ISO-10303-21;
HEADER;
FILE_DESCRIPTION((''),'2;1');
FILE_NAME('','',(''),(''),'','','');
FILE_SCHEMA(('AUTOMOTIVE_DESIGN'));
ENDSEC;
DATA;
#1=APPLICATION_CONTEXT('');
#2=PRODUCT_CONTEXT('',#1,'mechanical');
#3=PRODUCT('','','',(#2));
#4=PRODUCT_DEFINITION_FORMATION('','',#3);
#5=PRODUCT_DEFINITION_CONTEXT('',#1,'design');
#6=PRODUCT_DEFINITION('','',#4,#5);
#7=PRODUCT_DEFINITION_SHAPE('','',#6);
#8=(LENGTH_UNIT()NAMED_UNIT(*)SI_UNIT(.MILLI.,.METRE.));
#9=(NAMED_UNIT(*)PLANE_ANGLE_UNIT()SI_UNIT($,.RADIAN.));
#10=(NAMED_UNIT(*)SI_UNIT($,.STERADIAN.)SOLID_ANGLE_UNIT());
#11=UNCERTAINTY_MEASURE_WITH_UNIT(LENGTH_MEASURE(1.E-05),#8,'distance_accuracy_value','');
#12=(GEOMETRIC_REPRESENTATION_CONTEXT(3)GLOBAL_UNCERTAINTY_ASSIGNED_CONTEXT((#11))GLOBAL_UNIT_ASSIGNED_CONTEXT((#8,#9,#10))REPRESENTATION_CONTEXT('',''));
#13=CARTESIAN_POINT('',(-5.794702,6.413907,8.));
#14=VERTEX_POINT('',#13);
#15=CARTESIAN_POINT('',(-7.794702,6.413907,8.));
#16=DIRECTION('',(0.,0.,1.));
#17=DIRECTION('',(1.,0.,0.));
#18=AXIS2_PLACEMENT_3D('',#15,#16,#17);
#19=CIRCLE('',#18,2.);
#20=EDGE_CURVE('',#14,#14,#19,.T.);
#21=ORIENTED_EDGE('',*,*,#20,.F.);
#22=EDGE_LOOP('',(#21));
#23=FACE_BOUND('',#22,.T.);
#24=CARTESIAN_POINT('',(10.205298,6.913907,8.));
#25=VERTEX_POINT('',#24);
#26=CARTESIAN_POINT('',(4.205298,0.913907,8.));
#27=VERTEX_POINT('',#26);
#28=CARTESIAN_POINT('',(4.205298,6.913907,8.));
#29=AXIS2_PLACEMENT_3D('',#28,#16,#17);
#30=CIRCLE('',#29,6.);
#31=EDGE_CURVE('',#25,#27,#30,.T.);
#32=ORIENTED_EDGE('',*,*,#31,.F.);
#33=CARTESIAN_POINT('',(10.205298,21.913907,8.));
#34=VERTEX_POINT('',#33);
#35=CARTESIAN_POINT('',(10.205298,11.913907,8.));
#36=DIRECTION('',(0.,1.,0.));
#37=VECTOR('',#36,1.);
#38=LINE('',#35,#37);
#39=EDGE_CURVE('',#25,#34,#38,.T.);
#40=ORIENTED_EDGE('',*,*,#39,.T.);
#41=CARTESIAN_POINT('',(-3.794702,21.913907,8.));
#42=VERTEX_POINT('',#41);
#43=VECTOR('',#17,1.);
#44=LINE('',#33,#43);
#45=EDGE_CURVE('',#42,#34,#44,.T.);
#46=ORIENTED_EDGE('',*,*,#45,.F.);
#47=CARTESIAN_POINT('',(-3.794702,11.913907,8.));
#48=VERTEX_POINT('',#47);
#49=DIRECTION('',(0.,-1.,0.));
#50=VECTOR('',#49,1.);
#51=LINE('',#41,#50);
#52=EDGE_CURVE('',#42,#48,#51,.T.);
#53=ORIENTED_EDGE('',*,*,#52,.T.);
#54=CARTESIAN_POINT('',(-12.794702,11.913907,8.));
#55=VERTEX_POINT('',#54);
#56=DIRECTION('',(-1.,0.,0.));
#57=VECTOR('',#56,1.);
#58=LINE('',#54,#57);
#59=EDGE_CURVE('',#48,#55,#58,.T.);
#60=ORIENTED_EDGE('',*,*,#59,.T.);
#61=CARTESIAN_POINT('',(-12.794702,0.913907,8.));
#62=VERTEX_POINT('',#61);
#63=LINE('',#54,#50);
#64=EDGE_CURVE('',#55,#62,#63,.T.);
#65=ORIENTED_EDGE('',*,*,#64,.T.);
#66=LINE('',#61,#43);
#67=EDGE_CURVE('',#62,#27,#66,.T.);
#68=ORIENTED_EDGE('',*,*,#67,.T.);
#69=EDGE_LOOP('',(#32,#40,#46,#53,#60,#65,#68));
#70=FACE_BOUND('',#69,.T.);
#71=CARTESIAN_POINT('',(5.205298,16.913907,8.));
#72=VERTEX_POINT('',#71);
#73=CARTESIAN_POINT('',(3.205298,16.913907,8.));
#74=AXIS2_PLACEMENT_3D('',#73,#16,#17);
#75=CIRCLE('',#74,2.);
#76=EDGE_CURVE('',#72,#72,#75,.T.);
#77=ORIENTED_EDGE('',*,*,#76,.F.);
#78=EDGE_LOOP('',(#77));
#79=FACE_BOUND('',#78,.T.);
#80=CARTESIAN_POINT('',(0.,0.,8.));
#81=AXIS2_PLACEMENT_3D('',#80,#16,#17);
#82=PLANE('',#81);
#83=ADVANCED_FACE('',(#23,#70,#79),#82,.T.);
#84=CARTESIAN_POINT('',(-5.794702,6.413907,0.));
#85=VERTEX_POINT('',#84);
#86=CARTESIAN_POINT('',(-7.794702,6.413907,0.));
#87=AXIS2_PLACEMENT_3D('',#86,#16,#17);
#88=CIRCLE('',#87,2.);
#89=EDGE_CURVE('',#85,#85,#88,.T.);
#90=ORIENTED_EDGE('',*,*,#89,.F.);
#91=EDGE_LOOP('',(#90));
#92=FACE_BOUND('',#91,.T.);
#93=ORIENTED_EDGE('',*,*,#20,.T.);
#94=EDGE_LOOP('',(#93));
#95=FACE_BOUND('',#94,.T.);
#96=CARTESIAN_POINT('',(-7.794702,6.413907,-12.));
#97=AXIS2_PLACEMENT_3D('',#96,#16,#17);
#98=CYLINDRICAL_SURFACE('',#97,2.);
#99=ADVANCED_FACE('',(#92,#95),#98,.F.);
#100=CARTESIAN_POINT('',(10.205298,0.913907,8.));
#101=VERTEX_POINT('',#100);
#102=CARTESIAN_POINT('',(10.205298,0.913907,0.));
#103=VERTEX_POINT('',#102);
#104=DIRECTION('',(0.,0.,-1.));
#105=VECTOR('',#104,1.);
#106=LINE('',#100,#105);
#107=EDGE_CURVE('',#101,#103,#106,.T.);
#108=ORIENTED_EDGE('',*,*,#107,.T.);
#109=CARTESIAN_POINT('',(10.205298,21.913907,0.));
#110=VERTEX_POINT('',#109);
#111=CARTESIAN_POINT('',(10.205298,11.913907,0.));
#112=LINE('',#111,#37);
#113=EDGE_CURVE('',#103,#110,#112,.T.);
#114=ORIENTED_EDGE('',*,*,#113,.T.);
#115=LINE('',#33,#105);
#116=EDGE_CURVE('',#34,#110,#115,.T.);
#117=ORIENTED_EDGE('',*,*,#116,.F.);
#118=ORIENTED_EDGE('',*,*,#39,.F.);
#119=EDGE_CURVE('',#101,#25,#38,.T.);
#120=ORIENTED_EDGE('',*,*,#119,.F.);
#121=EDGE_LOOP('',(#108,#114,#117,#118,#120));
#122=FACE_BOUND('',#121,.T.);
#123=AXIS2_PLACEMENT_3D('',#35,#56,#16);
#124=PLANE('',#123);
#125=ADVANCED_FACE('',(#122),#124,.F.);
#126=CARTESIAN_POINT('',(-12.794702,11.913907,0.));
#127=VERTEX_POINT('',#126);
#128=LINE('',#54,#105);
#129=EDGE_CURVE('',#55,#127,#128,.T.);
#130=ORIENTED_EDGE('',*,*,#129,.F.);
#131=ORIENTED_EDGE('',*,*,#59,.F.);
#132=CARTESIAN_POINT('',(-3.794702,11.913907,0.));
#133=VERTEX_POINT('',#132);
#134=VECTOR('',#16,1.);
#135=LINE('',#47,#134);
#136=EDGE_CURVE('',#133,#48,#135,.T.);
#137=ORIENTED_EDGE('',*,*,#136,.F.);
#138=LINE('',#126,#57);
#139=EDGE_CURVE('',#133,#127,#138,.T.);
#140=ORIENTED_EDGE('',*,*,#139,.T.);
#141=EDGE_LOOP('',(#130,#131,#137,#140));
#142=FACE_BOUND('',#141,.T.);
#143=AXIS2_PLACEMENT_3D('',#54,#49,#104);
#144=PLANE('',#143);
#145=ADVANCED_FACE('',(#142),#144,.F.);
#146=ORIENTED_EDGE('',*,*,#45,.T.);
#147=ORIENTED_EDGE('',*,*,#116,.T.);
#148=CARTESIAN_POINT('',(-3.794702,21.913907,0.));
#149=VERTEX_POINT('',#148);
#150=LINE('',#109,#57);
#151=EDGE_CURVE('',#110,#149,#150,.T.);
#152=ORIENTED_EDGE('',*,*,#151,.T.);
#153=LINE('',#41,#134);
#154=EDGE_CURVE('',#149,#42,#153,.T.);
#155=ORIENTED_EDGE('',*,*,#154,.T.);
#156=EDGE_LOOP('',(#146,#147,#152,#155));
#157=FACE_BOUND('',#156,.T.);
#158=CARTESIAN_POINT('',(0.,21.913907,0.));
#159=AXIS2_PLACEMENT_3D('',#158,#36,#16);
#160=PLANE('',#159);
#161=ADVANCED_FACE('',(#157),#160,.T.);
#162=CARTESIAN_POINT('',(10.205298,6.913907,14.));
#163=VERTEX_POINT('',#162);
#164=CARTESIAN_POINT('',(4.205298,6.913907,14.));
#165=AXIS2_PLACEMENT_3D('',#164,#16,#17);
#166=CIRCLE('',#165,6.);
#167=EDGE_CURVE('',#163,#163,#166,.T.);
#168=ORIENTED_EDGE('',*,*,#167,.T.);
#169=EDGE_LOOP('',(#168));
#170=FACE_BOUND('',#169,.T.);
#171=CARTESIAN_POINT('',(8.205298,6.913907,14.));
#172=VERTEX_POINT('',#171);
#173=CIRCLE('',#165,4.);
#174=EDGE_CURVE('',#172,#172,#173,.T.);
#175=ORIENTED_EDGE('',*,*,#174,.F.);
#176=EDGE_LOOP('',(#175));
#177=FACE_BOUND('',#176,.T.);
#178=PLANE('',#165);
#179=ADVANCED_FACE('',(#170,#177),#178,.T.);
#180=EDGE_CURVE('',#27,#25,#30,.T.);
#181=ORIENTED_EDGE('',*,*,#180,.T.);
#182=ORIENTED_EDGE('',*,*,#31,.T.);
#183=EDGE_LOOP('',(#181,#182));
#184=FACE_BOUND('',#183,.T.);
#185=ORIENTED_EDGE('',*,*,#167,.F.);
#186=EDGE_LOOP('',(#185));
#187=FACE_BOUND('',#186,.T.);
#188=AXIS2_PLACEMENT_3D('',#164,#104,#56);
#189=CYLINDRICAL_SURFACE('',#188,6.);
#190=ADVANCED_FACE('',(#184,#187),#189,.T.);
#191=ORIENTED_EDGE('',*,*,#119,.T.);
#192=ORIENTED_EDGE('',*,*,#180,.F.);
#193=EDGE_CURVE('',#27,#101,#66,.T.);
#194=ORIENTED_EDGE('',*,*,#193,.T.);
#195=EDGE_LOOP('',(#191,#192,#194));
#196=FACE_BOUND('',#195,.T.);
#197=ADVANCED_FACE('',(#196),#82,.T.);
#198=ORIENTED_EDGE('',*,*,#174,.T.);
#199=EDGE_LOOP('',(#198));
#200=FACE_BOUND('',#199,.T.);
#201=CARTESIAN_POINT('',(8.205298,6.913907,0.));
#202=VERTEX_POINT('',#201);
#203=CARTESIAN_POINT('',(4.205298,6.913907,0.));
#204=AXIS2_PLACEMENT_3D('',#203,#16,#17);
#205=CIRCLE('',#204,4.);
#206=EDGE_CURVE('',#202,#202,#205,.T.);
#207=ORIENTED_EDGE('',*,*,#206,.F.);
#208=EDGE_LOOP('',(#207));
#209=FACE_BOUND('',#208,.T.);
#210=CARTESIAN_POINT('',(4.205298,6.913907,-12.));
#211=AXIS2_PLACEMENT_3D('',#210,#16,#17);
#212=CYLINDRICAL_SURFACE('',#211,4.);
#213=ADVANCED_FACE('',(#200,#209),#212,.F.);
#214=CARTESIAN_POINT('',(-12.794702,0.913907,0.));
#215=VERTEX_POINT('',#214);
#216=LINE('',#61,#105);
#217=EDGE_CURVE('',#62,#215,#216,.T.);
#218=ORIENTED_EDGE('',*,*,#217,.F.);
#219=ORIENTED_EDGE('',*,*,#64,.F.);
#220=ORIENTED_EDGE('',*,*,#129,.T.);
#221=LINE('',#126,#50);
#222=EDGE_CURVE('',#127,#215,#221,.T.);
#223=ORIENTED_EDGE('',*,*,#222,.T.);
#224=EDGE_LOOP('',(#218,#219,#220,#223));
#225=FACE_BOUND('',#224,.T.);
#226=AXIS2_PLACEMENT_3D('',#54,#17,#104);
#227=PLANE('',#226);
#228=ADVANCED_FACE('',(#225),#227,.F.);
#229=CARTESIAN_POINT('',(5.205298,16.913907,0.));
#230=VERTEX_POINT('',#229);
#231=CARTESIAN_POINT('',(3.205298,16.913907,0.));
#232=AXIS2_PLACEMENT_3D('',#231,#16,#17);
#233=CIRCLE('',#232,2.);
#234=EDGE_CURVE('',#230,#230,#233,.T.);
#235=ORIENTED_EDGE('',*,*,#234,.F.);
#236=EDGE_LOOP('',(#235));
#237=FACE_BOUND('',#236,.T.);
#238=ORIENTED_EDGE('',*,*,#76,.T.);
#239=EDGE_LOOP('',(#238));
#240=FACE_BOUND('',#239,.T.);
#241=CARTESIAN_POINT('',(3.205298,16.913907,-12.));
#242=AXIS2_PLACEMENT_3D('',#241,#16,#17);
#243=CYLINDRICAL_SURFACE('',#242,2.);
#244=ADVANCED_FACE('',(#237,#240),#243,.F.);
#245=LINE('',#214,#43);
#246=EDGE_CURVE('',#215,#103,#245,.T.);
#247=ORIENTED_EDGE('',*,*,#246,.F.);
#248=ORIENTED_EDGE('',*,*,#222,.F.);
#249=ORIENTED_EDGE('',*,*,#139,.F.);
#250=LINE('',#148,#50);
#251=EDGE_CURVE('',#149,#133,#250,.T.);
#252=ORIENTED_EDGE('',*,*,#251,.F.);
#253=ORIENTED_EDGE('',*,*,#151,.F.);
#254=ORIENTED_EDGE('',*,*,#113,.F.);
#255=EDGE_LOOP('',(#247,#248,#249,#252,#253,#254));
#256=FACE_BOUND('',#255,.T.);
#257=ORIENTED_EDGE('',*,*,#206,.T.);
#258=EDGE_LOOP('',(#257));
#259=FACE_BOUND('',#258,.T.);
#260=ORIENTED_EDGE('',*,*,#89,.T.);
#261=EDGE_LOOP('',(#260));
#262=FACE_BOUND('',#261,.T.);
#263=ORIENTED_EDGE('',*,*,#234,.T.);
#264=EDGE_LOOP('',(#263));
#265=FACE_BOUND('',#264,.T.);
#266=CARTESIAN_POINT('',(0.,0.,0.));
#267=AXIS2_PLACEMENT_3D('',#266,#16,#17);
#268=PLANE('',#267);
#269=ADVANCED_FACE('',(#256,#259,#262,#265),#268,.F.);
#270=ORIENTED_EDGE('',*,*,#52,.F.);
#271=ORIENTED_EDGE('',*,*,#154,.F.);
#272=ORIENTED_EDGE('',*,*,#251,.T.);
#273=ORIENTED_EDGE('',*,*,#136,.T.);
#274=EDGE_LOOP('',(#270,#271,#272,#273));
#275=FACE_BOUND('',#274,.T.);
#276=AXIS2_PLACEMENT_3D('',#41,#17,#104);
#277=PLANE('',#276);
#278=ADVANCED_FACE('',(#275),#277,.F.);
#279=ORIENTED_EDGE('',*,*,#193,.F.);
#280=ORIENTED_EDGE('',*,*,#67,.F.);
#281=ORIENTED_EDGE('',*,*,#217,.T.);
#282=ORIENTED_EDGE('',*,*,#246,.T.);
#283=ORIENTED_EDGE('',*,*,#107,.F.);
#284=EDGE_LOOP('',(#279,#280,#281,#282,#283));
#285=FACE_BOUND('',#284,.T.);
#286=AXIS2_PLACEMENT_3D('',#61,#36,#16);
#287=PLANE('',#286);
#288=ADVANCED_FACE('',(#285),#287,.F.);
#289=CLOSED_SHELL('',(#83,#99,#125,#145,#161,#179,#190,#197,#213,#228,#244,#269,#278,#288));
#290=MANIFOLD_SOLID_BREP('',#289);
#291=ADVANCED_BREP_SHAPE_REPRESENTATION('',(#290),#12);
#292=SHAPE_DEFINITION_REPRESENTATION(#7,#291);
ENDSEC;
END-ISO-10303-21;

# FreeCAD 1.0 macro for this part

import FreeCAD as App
import Part
import Sketcher
Q = App.Units.Quantity

doc = App.newDocument("Part")
body = doc.addObject("PartDesign::Body", "Body")

# Sketch on XY plane
sketch1 = body.newObject("Sketcher::SketchObject", "Sketch")
sketch1.AttachmentSupport = (doc.getObject("XY_Plane"), [""])
sketch1.MapMode = "FlatFace"
sketch1.addGeometry(Part.LineSegment(App.Vector(-13, 12, 0), App.Vector(-13, 1, 0)), False)
sketch1.addGeometry(Part.LineSegment(App.Vector(-13, 1, 0), App.Vector(10, 1, 0)), False)
sketch1.addGeometry(Part.LineSegment(App.Vector(10, 1, 0), App.Vector(10, 12, 0)), False)
sketch1.addGeometry(Part.LineSegment(App.Vector(10, 12, 0), App.Vector(-13, 12, 0)), False)
sketch1.addConstraint(Sketcher.Constraint("Coincident", 0, 2, 1, 1))
sketch1.addConstraint(Sketcher.Constraint("Coincident", 1, 2, 2, 1))
sketch1.addConstraint(Sketcher.Constraint("Coincident", 2, 2, 3, 1))
sketch1.addConstraint(Sketcher.Constraint("Coincident", 3, 2, 0, 1))
sketch1.addConstraint(Sketcher.Constraint("Vertical", 0))
sketch1.addConstraint(Sketcher.Constraint("Horizontal", 1))
sketch1.addConstraint(Sketcher.Constraint("Vertical", 2))
sketch1.addConstraint(Sketcher.Constraint("Horizontal", 3))
sketch1.addConstraint(Sketcher.Constraint("DistanceX", 1, 1, 1, 2, Q("23 mm")))
sketch1.addConstraint(Sketcher.Constraint("DistanceY", 0, 2, 0, 1, Q("11 mm")))
sketch1.addConstraint(Sketcher.Constraint("DistanceX", 0, 2, -1, 1, Q("12.794702 mm")))
sketch1.addConstraint(Sketcher.Constraint("DistanceY", -1, 1, 0, 2, Q("0.913907 mm")))
pad1 = body.newObject("PartDesign::Pad", "Pad")
pad1.Profile = sketch1
pad1.Length = 8

# Sketch on XZ plane
sketch2 = body.newObject("Sketcher::SketchObject", "Sketch001")
sketch2.AttachmentSupport = (doc.getObject("XZ_Plane"), [""])
sketch2.MapMode = "FlatFace"
sketch2.AttachmentOffset = App.Placement(App.Vector(0, 0, -11.913907), App.Rotation())
sketch2.addGeometry(Part.LineSegment(App.Vector(-4, 0, 0), App.Vector(-4, 8, 0)), False)
sketch2.addGeometry(Part.LineSegment(App.Vector(-4, 8, 0), App.Vector(10, 8, 0)), False)
sketch2.addGeometry(Part.LineSegment(App.Vector(10, 8, 0), App.Vector(10, 0, 0)), False)
sketch2.addGeometry(Part.LineSegment(App.Vector(10, 0, 0), App.Vector(-4, 0, 0)), False)
sketch2.addConstraint(Sketcher.Constraint("Coincident", 0, 2, 1, 1))
sketch2.addConstraint(Sketcher.Constraint("Coincident", 1, 2, 2, 1))
sketch2.addConstraint(Sketcher.Constraint("Coincident", 2, 2, 3, 1))
sketch2.addConstraint(Sketcher.Constraint("Coincident", 3, 2, 0, 1))
sketch2.addConstraint(Sketcher.Constraint("Vertical", 0))
sketch2.addConstraint(Sketcher.Constraint("Horizontal", 1))
sketch2.addConstraint(Sketcher.Constraint("Vertical", 2))
sketch2.addConstraint(Sketcher.Constraint("Horizontal", 3))
sketch2.addConstraint(Sketcher.Constraint("PointOnObject", 2, 2, -1))
sketch2.addConstraint(Sketcher.Constraint("DistanceX", 1, 1, 1, 2, Q("14 mm")))
sketch2.addConstraint(Sketcher.Constraint("DistanceY", 0, 1, 0, 2, Q("8 mm")))
sketch2.addConstraint(Sketcher.Constraint("DistanceX", 0, 2, -1, 1, Q("3.794702 mm")))
pad2 = body.newObject("PartDesign::Pad", "Pad001")
pad2.Profile = sketch2
pad2.Length = 10
pad2.Reversed = True

# Sketch on XY plane
sketch3 = body.newObject("Sketcher::SketchObject", "Sketch002")
sketch3.AttachmentSupport = (doc.getObject("XY_Plane"), [""])
sketch3.MapMode = "FlatFace"
sketch3.AttachmentOffset = App.Placement(App.Vector(0, 0, 8), App.Rotation())
sketch3.addGeometry(Part.Circle(App.Vector(-7.8, 6.4, 0), App.Vector(0, 0, 1), 2), False)
sketch3.addGeometry(Part.Circle(App.Vector(3.2, 16.9, 0), App.Vector(0, 0, 1), 2), False)
sketch3.addConstraint(Sketcher.Constraint("Equal", 0, 1))
sketch3.addConstraint(Sketcher.Constraint("Diameter", 0, Q("4 mm")))
sketch3.addConstraint(Sketcher.Constraint("DistanceX", 0, 3, 1, 3, Q("11 mm")))
sketch3.addConstraint(Sketcher.Constraint("DistanceY", 0, 3, 1, 3, Q("10.5 mm")))
sketch3.addConstraint(Sketcher.Constraint("DistanceX", 0, 3, -1, 1, Q("7.794702 mm")))
sketch3.addConstraint(Sketcher.Constraint("DistanceY", -1, 1, 0, 3, Q("6.413907 mm")))
pocket1 = body.newObject("PartDesign::Pocket", "Pocket")
pocket1.Profile = sketch3
pocket1.Length = 20

# Sketch on XY plane
sketch4 = body.newObject("Sketcher::SketchObject", "Sketch003")
sketch4.AttachmentSupport = (doc.getObject("XY_Plane"), [""])
sketch4.MapMode = "FlatFace"
sketch4.AttachmentOffset = App.Placement(App.Vector(0, 0, 8), App.Rotation())
sketch4.addGeometry(Part.Circle(App.Vector(4.2, 6.9, 0), App.Vector(0, 0, 1), 4), False)
sketch4.addConstraint(Sketcher.Constraint("Diameter", 0, Q("8 mm")))
sketch4.addConstraint(Sketcher.Constraint("DistanceX", -1, 1, 0, 3, Q("4.205298 mm")))
sketch4.addConstraint(Sketcher.Constraint("DistanceY", -1, 1, 0, 3, Q("6.913907 mm")))
pocket2 = body.newObject("PartDesign::Pocket", "Pocket001")
pocket2.Profile = sketch4
pocket2.Length = 20

# Sketch on XY plane
sketch5 = body.newObject("Sketcher::SketchObject", "Sketch004")
sketch5.AttachmentSupport = (doc.getObject("XY_Plane"), [""])
sketch5.MapMode = "FlatFace"
sketch5.AttachmentOffset = App.Placement(App.Vector(0, 0, 14), App.Rotation())
sketch5.addGeometry(Part.Circle(App.Vector(4.2, 6.9, 0), App.Vector(0, 0, 1), 6), False)
sketch5.addGeometry(Part.Circle(App.Vector(4.2, 6.9, 0), App.Vector(0, 0, 1), 4), False)
sketch5.addConstraint(Sketcher.Constraint("Coincident", 1, 3, 0, 3))
sketch5.addConstraint(Sketcher.Constraint("Diameter", 0, Q("12 mm")))
sketch5.addConstraint(Sketcher.Constraint("Diameter", 1, Q("8 mm")))
sketch5.addConstraint(Sketcher.Constraint("DistanceX", -1, 1, 0, 3, Q("4.205298 mm")))
sketch5.addConstraint(Sketcher.Constraint("DistanceY", -1, 1, 0, 3, Q("6.913907 mm")))
pad3 = body.newObject("PartDesign::Pad", "Pad002")
pad3.Profile = sketch5
pad3.Length = 6
pad3.Reversed = True

doc.recompute()
